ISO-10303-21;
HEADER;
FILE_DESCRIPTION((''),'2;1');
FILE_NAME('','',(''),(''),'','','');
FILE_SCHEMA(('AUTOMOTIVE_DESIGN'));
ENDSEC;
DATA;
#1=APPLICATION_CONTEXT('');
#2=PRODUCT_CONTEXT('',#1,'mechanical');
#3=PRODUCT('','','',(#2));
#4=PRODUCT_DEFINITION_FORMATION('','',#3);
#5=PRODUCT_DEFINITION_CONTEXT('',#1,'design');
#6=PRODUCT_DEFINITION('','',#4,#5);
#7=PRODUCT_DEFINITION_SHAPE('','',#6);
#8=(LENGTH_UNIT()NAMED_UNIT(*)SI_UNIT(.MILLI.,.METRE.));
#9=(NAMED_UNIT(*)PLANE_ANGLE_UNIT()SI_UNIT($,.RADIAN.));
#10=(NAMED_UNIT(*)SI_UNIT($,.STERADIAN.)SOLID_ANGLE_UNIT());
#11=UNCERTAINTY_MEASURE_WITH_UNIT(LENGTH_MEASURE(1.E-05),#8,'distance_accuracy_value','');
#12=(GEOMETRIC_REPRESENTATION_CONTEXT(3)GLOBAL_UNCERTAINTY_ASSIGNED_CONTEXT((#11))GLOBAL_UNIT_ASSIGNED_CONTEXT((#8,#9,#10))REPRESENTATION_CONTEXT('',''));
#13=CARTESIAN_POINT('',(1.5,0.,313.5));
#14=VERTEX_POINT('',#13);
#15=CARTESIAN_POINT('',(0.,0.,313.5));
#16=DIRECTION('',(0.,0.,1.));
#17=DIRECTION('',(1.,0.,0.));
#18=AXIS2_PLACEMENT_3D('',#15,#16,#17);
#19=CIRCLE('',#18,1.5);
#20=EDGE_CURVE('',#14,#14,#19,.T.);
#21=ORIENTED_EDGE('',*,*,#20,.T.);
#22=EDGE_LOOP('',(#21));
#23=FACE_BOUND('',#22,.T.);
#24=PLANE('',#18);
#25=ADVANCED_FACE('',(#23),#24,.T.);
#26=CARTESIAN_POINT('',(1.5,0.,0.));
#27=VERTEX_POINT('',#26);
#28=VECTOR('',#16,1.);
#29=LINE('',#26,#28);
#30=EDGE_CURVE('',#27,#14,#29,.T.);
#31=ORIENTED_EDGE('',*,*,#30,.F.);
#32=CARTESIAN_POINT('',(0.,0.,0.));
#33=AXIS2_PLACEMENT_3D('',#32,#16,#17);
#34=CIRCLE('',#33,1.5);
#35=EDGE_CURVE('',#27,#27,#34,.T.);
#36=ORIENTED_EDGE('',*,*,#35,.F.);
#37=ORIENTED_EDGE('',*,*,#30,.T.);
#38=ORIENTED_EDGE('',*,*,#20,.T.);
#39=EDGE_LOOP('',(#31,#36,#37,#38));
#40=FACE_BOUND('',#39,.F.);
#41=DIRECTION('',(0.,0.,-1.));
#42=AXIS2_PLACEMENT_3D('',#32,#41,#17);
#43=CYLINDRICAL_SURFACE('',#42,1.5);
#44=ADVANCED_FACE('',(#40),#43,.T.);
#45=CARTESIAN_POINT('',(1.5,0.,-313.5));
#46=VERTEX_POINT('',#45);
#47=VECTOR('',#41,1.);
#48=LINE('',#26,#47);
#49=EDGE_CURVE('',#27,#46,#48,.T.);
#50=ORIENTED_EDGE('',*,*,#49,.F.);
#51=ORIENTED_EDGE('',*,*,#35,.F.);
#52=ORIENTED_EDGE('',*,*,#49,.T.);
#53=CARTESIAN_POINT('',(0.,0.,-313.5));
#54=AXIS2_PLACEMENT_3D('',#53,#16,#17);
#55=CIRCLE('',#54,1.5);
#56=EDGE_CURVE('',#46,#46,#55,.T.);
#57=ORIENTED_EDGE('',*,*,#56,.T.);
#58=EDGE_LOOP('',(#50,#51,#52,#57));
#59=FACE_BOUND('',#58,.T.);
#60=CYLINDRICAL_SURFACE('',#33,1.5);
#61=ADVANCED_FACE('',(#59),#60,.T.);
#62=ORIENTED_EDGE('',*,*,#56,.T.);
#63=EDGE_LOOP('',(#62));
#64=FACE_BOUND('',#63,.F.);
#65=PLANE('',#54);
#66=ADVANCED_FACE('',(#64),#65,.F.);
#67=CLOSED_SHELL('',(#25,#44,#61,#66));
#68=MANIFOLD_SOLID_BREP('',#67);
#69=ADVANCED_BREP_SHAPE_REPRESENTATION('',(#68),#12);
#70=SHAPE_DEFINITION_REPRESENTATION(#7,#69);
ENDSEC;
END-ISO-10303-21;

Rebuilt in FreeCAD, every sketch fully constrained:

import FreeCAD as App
import Part
import Sketcher

V = App.Vector
Q = App.Units.Quantity

doc = App.newDocument("Part")
body = doc.addObject("PartDesign::Body", "Body")

# Sketch on XY plane
sketch1 = body.newObject("Sketcher::SketchObject", "Sketch")
sketch1.AttachmentSupport = (doc.getObject("XY_Plane"), [""])
sketch1.MapMode = "FlatFace"
sketch1.addGeometry(Part.Circle(V(0, 0, 0), V(0, 0, 1), 1.5), False)
sketch1.addConstraint([
    Sketcher.Constraint("Coincident", 0, 3, -1, 1),
    Sketcher.Constraint("Diameter", 0, Q("3 mm")),
])
pad1 = body.newObject("PartDesign::Pad", "Pad")
pad1.Profile = sketch1
pad1.Length = 627
pad1.Midplane = True

doc.recompute()
